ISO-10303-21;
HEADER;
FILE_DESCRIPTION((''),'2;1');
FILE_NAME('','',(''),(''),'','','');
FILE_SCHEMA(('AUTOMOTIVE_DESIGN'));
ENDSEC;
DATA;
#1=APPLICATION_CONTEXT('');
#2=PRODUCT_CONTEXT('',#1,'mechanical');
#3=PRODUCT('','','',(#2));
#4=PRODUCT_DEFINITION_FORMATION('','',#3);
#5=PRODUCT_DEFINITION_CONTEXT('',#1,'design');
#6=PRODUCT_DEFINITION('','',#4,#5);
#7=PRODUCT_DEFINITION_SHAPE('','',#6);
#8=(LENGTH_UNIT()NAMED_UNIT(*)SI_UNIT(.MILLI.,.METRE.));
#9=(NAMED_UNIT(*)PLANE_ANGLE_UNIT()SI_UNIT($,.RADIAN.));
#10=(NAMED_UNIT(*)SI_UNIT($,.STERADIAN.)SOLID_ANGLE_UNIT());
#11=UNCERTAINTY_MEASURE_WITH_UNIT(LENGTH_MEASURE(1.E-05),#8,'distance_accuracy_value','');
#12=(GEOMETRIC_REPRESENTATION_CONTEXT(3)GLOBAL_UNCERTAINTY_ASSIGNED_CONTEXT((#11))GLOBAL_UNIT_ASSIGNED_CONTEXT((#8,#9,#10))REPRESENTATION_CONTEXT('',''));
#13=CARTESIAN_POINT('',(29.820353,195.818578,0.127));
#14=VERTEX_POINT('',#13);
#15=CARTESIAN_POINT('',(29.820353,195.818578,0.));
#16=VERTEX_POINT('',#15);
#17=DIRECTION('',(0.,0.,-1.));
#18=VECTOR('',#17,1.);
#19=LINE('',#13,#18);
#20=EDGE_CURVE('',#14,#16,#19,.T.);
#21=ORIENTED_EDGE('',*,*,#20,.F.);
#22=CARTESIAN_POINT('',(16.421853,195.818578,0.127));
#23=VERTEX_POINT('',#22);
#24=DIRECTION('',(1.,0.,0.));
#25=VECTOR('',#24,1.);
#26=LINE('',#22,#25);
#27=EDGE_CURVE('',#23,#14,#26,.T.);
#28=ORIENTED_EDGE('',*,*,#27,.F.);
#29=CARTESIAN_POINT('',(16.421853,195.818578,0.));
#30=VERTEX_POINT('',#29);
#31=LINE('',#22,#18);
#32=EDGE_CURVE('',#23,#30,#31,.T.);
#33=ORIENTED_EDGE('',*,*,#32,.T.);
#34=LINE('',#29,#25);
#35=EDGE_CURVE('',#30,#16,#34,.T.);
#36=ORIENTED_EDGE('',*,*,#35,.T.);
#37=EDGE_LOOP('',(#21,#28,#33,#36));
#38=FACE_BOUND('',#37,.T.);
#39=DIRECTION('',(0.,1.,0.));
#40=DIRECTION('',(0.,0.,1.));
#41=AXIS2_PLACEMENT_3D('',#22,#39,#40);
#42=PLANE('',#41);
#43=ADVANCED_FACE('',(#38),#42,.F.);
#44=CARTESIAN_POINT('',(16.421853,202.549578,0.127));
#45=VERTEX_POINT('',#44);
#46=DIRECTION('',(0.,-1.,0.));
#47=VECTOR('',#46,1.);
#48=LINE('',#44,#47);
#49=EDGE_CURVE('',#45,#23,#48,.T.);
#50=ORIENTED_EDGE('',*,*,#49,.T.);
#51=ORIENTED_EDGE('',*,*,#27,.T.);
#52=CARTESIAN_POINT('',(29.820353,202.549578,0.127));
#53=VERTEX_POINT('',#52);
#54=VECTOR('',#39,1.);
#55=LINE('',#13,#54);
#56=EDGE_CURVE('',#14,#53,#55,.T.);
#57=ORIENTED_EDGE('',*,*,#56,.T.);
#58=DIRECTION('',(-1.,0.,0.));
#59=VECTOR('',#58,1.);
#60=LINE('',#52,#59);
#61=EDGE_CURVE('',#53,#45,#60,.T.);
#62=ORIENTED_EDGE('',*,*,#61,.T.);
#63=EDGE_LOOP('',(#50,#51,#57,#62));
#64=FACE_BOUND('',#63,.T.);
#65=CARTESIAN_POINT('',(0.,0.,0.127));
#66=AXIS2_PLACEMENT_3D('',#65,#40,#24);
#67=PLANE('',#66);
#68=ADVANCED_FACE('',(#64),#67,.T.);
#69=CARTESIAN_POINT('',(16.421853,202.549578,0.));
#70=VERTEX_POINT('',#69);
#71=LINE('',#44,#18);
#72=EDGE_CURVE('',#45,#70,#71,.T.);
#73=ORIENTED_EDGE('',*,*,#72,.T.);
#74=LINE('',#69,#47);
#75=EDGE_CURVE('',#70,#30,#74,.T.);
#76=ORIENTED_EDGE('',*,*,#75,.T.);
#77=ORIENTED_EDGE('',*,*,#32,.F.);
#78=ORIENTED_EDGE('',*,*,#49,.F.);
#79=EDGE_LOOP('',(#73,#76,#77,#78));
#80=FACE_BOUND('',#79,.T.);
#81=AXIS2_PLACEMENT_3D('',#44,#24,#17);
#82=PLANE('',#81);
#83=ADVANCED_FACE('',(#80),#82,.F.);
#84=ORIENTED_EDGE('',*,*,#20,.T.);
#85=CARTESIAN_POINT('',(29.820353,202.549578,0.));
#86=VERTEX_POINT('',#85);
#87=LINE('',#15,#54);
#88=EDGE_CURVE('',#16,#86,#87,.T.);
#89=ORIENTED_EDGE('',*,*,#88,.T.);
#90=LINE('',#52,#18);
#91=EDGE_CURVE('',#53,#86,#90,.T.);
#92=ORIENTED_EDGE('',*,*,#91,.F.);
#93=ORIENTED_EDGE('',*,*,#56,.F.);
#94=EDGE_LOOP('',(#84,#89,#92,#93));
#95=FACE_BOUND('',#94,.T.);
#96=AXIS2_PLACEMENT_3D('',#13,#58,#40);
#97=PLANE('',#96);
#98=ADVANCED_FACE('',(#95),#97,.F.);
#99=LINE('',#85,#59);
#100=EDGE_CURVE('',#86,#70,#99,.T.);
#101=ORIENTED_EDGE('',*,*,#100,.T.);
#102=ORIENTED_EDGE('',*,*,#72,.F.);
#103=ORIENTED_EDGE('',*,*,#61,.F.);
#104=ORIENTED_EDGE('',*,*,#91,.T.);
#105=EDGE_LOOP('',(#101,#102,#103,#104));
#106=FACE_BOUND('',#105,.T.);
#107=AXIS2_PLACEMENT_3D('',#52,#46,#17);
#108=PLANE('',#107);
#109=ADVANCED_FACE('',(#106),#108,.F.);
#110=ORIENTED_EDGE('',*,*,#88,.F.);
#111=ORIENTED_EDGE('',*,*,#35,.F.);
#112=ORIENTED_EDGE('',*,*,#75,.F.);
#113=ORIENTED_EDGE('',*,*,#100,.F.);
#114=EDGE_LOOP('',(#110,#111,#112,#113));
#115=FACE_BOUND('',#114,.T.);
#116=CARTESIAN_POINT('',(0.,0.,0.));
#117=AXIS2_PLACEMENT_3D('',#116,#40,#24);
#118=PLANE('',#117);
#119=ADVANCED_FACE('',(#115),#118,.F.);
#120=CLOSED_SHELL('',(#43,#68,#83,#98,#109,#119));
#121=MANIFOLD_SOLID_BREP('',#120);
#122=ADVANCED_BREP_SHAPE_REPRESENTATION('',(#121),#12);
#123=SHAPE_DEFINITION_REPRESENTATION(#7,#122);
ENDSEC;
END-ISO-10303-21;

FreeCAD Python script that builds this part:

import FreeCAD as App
import Part
import Sketcher
from FreeCAD import Vector
Q = App.Units.Quantity

doc = App.newDocument("Part")
body = doc.addObject("PartDesign::Body", "Body")

# Sketch on XY plane
sketch1 = body.newObject("Sketcher::SketchObject", "Sketch")
sketch1.AttachmentSupport = (doc.getObject("XY_Plane"), [""])
sketch1.MapMode = "FlatFace"
sketch1.addGeometry([
    Part.LineSegment(Vector(16.421853, 202.549578, 0), Vector(16.421853, 195.818578, 0)),
    Part.LineSegment(Vector(16.421853, 195.818578, 0), Vector(29.820353, 195.818578, 0)),
    Part.LineSegment(Vector(29.820353, 195.818578, 0), Vector(29.820353, 202.549578, 0)),
    Part.LineSegment(Vector(29.820353, 202.549578, 0), Vector(16.421853, 202.549578, 0)),
], False)
sketch1.addConstraint([
    Sketcher.Constraint("Coincident", 0, 2, 1, 1),
    Sketcher.Constraint("Coincident", 1, 2, 2, 1),
    Sketcher.Constraint("Coincident", 2, 2, 3, 1),
    Sketcher.Constraint("Coincident", 3, 2, 0, 1),
    Sketcher.Constraint("Vertical", 0),
    Sketcher.Constraint("Horizontal", 1),
    Sketcher.Constraint("Vertical", 2),
    Sketcher.Constraint("Horizontal", 3),
    Sketcher.Constraint("DistanceY", 0, 2, 0, 1, Q("0.265 in")),
    Sketcher.Constraint("DistanceX", 1, 1, 1, 2, Q("0.5275 in")),
    Sketcher.Constraint("DistanceX", -1, 1, 0, 2, 16.421853),
    Sketcher.Constraint("DistanceY", -1, 1, 0, 2, 195.818578),
])
pad1 = body.newObject("PartDesign::Pad", "Pad")
pad1.Profile = sketch1
pad1.Length = Q("0.005 in")

doc.recompute()
